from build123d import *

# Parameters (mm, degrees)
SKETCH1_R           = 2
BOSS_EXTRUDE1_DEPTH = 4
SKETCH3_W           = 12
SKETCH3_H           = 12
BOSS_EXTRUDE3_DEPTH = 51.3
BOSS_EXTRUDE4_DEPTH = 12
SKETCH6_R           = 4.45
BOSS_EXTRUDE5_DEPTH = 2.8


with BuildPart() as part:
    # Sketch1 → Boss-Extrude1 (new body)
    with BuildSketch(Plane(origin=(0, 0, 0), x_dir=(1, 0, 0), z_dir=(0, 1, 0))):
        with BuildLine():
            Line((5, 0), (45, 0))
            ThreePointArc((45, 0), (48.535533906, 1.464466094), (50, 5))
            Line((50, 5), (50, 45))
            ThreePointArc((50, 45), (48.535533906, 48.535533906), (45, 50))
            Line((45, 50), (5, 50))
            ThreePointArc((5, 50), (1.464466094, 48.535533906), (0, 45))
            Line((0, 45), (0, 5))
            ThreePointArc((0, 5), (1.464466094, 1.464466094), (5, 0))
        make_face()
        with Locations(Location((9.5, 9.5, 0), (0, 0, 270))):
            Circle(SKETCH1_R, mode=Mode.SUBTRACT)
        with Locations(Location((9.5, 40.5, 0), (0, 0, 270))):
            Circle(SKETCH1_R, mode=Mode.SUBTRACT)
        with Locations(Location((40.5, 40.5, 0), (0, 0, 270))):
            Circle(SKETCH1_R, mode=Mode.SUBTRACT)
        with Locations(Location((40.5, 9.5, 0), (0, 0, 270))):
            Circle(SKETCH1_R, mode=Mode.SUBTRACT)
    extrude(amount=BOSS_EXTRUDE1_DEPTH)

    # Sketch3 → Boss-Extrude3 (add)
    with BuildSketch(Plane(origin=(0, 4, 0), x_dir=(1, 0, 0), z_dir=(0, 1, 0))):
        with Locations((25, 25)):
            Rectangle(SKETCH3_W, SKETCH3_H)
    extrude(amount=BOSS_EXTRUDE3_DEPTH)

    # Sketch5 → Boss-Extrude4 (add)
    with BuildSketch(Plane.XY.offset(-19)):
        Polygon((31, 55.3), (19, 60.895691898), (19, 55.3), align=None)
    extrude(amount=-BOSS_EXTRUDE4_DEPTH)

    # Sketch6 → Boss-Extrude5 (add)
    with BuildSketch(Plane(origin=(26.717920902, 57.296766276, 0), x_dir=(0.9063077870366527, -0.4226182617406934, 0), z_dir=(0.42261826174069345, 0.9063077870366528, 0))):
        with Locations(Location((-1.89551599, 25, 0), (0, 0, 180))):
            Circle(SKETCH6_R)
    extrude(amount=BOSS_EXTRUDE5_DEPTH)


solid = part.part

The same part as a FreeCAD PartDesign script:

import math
import FreeCAD as App
import Part
import Sketcher
from FreeCAD import Vector
Q = App.Units.Quantity


def add_polygon(sketch, points):
    """Adds a closed chain of lines whose ends are joined by coincident constraints."""
    first, n = sketch.GeometryCount, len(points)
    for a, b in zip(points, points[1:] + points[:1]):
        sketch.addGeometry(Part.LineSegment(App.Vector(*a, 0), App.Vector(*b, 0)), False)
    for i in range(n):
        sketch.addConstraint(Sketcher.Constraint("Coincident", first + i, 2, first + (i + 1) % n, 1))

doc = App.newDocument("Part")
body = doc.addObject("PartDesign::Body", "Body")

sketch1 = body.newObject("Sketcher::SketchObject", "Sketch")
sketch1.AttachmentSupport = (doc.getObject("XZ_Plane"), [""])
sketch1.MapMode = "FlatFace"
sketch1.addGeometry([
    Part.LineSegment(Vector(5, 0, 0), Vector(45, 0, 0)),
    Part.ArcOfCircle(Part.Circle(Vector(45, -5, 0), Vector(0, 0, 1), 5), math.radians(0), math.radians(90)),
    Part.LineSegment(Vector(50, -5, 0), Vector(50, -45, 0)),
    Part.ArcOfCircle(Part.Circle(Vector(45, -45, 0), Vector(0, 0, 1), 5), math.radians(-90), math.radians(0)),
    Part.LineSegment(Vector(45, -50, 0), Vector(5, -50, 0)),
    Part.ArcOfCircle(Part.Circle(Vector(5, -45, 0), Vector(0, 0, 1), 5), math.radians(180), math.radians(270)),
    Part.LineSegment(Vector(0, -45, 0), Vector(0, -5, 0)),
    Part.ArcOfCircle(Part.Circle(Vector(5, -5, 0), Vector(0, 0, 1), 5), math.radians(90), math.radians(180)),
    Part.Circle(Vector(9.5, -9.5, 0), Vector(0, 0, 1), 2),
    Part.Circle(Vector(40.5, -9.5, 0), Vector(0, 0, 1), 2),
    Part.Circle(Vector(9.5, -40.5, 0), Vector(0, 0, 1), 2),
    Part.Circle(Vector(40.5, -40.5, 0), Vector(0, 0, 1), 2),
], False)
sketch1.addConstraint([
    Sketcher.Constraint("Tangent", 0, 2, 1, 2),
    Sketcher.Constraint("Tangent", 1, 1, 2, 1),
    Sketcher.Constraint("Tangent", 2, 2, 3, 2),
    Sketcher.Constraint("Tangent", 3, 1, 4, 1),
    Sketcher.Constraint("Tangent", 4, 2, 5, 2),
    Sketcher.Constraint("Tangent", 5, 1, 6, 1),
    Sketcher.Constraint("Tangent", 6, 2, 7, 2),
    Sketcher.Constraint("Tangent", 7, 1, 0, 1),
    Sketcher.Constraint("Horizontal", 0),
    Sketcher.Constraint("Vertical", 2),
    Sketcher.Constraint("Horizontal", 4),
    Sketcher.Constraint("Vertical", 6),
    Sketcher.Constraint("Equal", 1, 3),
    Sketcher.Constraint("Equal", 3, 5),
    Sketcher.Constraint("Equal", 5, 7),
    Sketcher.Constraint("Equal", 8, 9),
    Sketcher.Constraint("Equal", 9, 10),
    Sketcher.Constraint("Equal", 10, 11),
    Sketcher.Constraint("PointOnObject", 0, 2, -1),
    Sketcher.Constraint("PointOnObject", 5, 1, -2),
    Sketcher.Constraint("Horizontal", 8, 3, 9, 3),
    Sketcher.Constraint("Horizontal", 10, 3, 11, 3),
    Sketcher.Constraint("Vertical", 8, 3, 10, 3),
    Sketcher.Constraint("Vertical", 9, 3, 11, 3),
    Sketcher.Constraint("Equal", 4, 2),
    Sketcher.Constraint("Diameter", 8, 4.0),
    Sketcher.Constraint("Radius", 1, 5.0),
    Sketcher.Constraint("DistanceX", 0, 1, 0, 2, 40.0),
    Sketcher.Constraint("DistanceX", 8, 3, 9, 3, 31.0),
    Sketcher.Constraint("DistanceY", 10, 3, 8, 3, 31.0),
    Sketcher.Constraint("DistanceX", -1, 1, 8, 3, 9.5),
    Sketcher.Constraint("DistanceY", 8, 3, -1, 1, 9.5),
])
pad1 = body.newObject("PartDesign::Pad", "Pad")
pad1.Profile = sketch1
pad1.Length = 4
pad1.Reversed = True

sketch2 = body.newObject("Sketcher::SketchObject", "Sketch001")
sketch2.AttachmentSupport = (doc.getObject("XZ_Plane"), [""])
sketch2.MapMode = "FlatFace"
sketch2.AttachmentOffset = App.Placement(Vector(0, 0, -4), App.Rotation())
add_polygon(sketch2, [(19, -31), (19, -19), (31, -19), (31, -31)])
sketch2.addConstraint([
    Sketcher.Constraint("Vertical", 0),
    Sketcher.Constraint("Horizontal", 1),
    Sketcher.Constraint("Vertical", 2),
    Sketcher.Constraint("Horizontal", 3),
    Sketcher.Constraint("Equal", 3, 0),
    Sketcher.Constraint("DistanceX", 1, 1, 1, 2, 12.0),
    Sketcher.Constraint("DistanceX", -1, 1, 0, 2, 19.0),
    Sketcher.Constraint("DistanceY", 0, 2, -1, 1, 19.0),
])
pad2 = body.newObject("PartDesign::Pad", "Pad001")
pad2.Profile = sketch2
pad2.Length = 51.3
pad2.Reversed = True

sketch3 = body.newObject("Sketcher::SketchObject", "Sketch002")
sketch3.AttachmentSupport = (doc.getObject("XY_Plane"), [""])
sketch3.MapMode = "FlatFace"
sketch3.AttachmentOffset = App.Placement(Vector(0, 0, -19), App.Rotation())
add_polygon(sketch3, [(31, 55), (19, 61), (19, 55)])
sketch3.addConstraint([
    Sketcher.Constraint("Vertical", 1),
    Sketcher.Constraint("Horizontal", 2),
    Sketcher.Constraint("DistanceX", 2, 1, 2, 2, 12.0),
    Sketcher.Constraint("Angle", 0, Q("155 deg")),
    Sketcher.Constraint("DistanceX", -1, 1, 0, 2, 19.0),
    Sketcher.Constraint("DistanceY", -1, 1, 1, 2, 55.3),
])
pad3 = body.newObject("PartDesign::Pad", "Pad002")
pad3.Profile = sketch3
pad3.Length = 12
pad3.Reversed = True

sketch4 = body.newObject("Sketcher::SketchObject", "Sketch003")
sketch4.Placement = App.Placement(Vector(26.717921, 57.296766, 0), App.Rotation(Vector(0.906307787, -0.422618262, 0), Vector(0, 0, -1), Vector(0.422618262, 0.906307787, 0), "ZXY"))
sketch4.addGeometry(Part.Circle(Vector(-1.9, 25, 0), Vector(0, 0, 1), 4.5), False)
sketch4.addConstraint([
    Sketcher.Constraint("Diameter", 0, 8.9),
    Sketcher.Constraint("DistanceY", -1, 1, 0, 3, 25.0),
    Sketcher.Constraint("DistanceX", 0, 3, -1, 1, 1.895516),
])
pad4 = body.newObject("PartDesign::Pad", "Pad003")
pad4.Profile = sketch4
pad4.Length = 2.8

doc.recompute()
